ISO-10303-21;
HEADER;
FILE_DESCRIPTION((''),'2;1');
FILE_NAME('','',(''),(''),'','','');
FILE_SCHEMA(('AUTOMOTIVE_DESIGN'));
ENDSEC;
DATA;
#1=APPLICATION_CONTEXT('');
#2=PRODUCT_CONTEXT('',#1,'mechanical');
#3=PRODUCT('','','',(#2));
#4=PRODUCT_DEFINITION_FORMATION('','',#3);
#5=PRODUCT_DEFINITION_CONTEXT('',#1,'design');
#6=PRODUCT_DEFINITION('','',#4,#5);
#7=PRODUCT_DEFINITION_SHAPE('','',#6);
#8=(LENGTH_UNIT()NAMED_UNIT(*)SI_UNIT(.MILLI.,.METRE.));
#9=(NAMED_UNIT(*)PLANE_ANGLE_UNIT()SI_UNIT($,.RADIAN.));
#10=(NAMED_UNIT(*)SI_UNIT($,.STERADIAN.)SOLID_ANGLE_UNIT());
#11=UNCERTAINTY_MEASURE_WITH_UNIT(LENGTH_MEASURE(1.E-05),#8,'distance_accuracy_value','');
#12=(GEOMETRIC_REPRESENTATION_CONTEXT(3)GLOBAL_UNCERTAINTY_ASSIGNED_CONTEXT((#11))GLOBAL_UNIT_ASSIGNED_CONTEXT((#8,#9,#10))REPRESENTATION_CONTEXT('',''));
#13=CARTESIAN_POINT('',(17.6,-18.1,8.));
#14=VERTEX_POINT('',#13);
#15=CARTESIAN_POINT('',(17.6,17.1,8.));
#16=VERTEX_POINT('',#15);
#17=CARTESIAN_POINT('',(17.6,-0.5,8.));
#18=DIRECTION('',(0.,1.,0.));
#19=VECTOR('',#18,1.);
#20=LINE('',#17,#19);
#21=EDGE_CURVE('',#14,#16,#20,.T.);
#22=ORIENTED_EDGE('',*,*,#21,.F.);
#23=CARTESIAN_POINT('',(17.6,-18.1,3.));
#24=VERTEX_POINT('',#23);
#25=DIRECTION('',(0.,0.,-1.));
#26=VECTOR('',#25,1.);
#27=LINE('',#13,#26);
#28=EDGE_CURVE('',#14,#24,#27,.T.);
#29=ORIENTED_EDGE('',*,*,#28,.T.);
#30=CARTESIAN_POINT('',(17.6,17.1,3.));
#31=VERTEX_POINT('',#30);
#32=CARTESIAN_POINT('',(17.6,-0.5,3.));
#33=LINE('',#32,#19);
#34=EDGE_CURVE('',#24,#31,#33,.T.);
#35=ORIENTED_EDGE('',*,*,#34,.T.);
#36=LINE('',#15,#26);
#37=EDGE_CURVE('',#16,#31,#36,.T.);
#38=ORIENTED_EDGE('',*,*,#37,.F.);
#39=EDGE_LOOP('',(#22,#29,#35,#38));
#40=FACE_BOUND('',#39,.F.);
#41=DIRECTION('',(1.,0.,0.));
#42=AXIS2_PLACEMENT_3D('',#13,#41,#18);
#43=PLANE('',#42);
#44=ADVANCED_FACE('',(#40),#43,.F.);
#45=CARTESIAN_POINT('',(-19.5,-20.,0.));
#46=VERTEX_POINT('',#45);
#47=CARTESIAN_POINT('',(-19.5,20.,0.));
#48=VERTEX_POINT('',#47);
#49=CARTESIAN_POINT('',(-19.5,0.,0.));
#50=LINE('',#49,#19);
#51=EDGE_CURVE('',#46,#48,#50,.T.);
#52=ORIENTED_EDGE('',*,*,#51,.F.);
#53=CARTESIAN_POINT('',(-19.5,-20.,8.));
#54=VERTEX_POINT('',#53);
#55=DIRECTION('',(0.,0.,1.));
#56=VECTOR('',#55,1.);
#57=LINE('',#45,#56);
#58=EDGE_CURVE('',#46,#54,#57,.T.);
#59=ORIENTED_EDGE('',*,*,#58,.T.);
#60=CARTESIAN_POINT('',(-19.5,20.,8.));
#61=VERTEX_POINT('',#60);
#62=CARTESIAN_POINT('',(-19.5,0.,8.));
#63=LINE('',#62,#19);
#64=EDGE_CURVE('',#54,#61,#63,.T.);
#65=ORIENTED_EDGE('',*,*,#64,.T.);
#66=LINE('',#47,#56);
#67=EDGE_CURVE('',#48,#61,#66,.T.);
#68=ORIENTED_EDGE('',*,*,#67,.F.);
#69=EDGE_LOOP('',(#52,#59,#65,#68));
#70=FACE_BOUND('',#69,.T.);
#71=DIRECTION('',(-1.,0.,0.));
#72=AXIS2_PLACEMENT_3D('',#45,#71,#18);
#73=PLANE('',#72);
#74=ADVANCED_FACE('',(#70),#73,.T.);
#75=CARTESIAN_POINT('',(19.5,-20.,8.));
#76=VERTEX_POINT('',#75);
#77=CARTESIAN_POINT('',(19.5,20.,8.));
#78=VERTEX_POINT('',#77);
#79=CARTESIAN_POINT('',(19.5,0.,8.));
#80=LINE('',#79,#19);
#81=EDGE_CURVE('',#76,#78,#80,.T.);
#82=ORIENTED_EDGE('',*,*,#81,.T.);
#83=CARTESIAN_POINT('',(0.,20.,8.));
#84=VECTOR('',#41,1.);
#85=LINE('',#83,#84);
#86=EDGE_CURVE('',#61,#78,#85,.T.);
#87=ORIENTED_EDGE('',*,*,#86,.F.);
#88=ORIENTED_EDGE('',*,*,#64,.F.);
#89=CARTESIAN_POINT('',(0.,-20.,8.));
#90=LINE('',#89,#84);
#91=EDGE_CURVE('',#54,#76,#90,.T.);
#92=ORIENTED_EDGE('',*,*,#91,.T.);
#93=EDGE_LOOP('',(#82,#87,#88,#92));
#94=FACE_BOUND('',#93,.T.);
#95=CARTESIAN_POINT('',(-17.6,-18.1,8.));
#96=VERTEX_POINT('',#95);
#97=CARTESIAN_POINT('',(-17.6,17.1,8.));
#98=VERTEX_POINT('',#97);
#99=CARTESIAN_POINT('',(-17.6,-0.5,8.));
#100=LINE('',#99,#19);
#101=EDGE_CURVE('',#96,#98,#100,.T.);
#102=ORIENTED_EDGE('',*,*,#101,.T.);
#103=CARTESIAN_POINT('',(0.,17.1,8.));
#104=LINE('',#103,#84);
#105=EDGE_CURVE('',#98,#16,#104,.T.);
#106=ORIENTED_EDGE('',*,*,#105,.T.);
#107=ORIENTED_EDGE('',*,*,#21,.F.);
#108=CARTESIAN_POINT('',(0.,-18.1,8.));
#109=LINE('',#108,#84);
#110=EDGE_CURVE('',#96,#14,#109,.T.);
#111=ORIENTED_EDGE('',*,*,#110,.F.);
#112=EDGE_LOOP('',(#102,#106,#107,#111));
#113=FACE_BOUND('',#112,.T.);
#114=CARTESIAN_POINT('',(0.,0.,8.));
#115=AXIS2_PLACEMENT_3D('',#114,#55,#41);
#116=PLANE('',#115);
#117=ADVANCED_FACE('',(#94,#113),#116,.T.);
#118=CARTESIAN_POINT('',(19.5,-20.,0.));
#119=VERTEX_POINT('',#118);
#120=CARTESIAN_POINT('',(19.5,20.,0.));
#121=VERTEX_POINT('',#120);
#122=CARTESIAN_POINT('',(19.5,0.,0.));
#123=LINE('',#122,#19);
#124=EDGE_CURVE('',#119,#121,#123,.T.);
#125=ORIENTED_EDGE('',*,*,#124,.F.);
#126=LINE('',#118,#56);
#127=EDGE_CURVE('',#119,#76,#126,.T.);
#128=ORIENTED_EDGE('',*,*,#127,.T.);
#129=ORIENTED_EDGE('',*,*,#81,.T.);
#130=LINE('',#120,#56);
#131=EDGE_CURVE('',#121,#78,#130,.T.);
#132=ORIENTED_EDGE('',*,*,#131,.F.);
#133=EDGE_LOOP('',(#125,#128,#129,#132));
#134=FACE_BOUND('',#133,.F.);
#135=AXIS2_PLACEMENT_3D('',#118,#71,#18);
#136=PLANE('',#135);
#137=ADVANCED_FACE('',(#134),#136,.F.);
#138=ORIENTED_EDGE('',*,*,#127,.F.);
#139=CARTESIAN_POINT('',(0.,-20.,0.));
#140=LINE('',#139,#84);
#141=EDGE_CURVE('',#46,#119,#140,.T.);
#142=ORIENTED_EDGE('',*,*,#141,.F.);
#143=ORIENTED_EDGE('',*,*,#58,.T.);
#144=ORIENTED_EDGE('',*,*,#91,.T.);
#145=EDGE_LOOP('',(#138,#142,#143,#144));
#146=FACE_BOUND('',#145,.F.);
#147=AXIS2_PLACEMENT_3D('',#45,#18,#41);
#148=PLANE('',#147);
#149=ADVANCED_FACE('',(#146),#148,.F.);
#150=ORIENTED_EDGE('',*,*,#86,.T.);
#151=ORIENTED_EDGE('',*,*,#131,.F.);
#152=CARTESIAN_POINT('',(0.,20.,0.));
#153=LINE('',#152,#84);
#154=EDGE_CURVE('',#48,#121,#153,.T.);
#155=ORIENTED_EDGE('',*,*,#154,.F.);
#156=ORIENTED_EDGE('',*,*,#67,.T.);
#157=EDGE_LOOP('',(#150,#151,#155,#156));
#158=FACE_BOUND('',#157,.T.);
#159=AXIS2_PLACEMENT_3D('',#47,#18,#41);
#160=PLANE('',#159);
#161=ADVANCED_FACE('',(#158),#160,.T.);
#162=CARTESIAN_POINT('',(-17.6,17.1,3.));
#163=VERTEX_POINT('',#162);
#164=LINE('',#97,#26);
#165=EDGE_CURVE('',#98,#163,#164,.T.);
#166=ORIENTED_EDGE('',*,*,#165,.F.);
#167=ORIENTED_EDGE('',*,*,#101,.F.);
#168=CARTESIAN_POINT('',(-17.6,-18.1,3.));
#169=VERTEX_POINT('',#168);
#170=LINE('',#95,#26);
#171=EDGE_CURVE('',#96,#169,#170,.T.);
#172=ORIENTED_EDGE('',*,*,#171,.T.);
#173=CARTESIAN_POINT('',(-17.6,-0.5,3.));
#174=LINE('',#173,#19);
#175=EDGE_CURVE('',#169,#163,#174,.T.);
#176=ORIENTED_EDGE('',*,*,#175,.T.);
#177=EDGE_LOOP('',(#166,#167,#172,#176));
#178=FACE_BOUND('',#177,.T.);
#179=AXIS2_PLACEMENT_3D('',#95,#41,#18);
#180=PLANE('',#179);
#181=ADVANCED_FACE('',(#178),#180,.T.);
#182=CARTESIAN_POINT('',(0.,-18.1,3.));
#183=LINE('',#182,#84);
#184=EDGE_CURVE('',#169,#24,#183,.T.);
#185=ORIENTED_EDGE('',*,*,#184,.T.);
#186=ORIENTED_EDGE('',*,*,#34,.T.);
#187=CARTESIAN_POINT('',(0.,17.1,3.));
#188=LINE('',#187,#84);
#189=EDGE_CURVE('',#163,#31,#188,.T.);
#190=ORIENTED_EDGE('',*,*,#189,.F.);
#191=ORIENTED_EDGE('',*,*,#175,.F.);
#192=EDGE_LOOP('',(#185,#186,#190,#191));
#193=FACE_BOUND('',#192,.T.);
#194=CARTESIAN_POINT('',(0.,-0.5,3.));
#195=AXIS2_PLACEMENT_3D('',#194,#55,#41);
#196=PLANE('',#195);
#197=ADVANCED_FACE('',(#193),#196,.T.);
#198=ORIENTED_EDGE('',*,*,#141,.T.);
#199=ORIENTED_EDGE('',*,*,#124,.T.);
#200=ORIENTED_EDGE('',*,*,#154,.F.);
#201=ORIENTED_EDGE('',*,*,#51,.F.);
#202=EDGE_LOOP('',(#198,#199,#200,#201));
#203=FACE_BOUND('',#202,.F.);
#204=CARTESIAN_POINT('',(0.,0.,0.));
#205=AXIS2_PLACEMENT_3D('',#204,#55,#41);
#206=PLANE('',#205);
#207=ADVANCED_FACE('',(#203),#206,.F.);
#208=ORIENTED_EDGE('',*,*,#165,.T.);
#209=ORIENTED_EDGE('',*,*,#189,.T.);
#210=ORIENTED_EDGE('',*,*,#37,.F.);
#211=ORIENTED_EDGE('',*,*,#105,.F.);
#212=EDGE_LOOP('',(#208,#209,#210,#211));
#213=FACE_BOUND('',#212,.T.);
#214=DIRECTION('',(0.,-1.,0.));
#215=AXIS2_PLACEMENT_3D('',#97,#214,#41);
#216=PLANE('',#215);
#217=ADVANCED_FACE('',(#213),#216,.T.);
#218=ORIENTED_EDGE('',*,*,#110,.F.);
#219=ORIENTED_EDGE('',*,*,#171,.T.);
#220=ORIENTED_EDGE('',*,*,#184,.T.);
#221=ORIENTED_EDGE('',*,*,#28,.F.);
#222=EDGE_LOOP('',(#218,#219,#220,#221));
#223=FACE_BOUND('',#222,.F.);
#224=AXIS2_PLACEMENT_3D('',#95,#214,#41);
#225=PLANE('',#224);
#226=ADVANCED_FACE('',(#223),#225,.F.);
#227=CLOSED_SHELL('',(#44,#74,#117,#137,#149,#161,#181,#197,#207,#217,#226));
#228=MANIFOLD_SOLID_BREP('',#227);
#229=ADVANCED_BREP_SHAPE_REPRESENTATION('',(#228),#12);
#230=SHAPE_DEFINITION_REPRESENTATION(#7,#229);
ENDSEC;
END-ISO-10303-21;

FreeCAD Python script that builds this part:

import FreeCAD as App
import Part
import Sketcher
from FreeCAD import Vector
Q = App.Units.Quantity


def add_polygon(sketch, points):
    """Adds a closed chain of lines whose ends are joined by coincident constraints."""
    first, n = sketch.GeometryCount, len(points)
    for a, b in zip(points, points[1:] + points[:1]):
        sketch.addGeometry(Part.LineSegment(App.Vector(*a, 0), App.Vector(*b, 0)), False)
    for i in range(n):
        sketch.addConstraint(Sketcher.Constraint("Coincident", first + i, 2, first + (i + 1) % n, 1))

doc = App.newDocument("Part")
body = doc.addObject("PartDesign::Body", "Body")

sketch1 = doc.addObject("Sketcher::SketchObject", "Sketch")
body.addObject(sketch1)
sketch1.AttachmentSupport = (doc.XY_Plane, [""])
sketch1.MapMode = "FlatFace"
add_polygon(sketch1, [(-20, 20), (-20, -20), (20, -20), (20, 20)])
sketch1.addConstraint([
    Sketcher.Constraint("Vertical", 0),
    Sketcher.Constraint("Horizontal", 1),
    Sketcher.Constraint("Vertical", 2),
    Sketcher.Constraint("Horizontal", 3),
    Sketcher.Constraint("Symmetric", 0, 2, 2, 2, -1, 1),
    Sketcher.Constraint("DistanceX", 1, 1, 1, 2, Q("39 mm")),
    Sketcher.Constraint("DistanceY", 0, 2, 0, 1, Q("40 mm")),
])
pad1 = doc.addObject("PartDesign::Pad", "Pad")
body.addObject(pad1)
pad1.Profile = sketch1
pad1.Length = 8

sketch2 = doc.addObject("Sketcher::SketchObject", "Sketch001")
body.addObject(sketch2)
sketch2.AttachmentSupport = (doc.XY_Plane, [""])
sketch2.MapMode = "FlatFace"
sketch2.AttachmentOffset = App.Placement(Vector(0, 0, 8), App.Rotation())
add_polygon(sketch2, [(-18, 17), (-18, -18), (18, -18), (18, 17)])
sketch2.addConstraint([
    Sketcher.Constraint("Vertical", 0),
    Sketcher.Constraint("Horizontal", 1),
    Sketcher.Constraint("Vertical", 2),
    Sketcher.Constraint("Horizontal", 3),
    Sketcher.Constraint("Equal", 3, 0),
    Sketcher.Constraint("DistanceX", 1, 1, 1, 2, Q("35.2 mm")),
    Sketcher.Constraint("DistanceX", 0, 2, -1, 1, Q("17.6 mm")),
    Sketcher.Constraint("DistanceY", 0, 2, -1, 1, Q("18.1 mm")),
])
pocket1 = doc.addObject("PartDesign::Pocket", "Pocket")
body.addObject(pocket1)
pocket1.Profile = sketch2
pocket1.Length = 5

doc.recompute()
